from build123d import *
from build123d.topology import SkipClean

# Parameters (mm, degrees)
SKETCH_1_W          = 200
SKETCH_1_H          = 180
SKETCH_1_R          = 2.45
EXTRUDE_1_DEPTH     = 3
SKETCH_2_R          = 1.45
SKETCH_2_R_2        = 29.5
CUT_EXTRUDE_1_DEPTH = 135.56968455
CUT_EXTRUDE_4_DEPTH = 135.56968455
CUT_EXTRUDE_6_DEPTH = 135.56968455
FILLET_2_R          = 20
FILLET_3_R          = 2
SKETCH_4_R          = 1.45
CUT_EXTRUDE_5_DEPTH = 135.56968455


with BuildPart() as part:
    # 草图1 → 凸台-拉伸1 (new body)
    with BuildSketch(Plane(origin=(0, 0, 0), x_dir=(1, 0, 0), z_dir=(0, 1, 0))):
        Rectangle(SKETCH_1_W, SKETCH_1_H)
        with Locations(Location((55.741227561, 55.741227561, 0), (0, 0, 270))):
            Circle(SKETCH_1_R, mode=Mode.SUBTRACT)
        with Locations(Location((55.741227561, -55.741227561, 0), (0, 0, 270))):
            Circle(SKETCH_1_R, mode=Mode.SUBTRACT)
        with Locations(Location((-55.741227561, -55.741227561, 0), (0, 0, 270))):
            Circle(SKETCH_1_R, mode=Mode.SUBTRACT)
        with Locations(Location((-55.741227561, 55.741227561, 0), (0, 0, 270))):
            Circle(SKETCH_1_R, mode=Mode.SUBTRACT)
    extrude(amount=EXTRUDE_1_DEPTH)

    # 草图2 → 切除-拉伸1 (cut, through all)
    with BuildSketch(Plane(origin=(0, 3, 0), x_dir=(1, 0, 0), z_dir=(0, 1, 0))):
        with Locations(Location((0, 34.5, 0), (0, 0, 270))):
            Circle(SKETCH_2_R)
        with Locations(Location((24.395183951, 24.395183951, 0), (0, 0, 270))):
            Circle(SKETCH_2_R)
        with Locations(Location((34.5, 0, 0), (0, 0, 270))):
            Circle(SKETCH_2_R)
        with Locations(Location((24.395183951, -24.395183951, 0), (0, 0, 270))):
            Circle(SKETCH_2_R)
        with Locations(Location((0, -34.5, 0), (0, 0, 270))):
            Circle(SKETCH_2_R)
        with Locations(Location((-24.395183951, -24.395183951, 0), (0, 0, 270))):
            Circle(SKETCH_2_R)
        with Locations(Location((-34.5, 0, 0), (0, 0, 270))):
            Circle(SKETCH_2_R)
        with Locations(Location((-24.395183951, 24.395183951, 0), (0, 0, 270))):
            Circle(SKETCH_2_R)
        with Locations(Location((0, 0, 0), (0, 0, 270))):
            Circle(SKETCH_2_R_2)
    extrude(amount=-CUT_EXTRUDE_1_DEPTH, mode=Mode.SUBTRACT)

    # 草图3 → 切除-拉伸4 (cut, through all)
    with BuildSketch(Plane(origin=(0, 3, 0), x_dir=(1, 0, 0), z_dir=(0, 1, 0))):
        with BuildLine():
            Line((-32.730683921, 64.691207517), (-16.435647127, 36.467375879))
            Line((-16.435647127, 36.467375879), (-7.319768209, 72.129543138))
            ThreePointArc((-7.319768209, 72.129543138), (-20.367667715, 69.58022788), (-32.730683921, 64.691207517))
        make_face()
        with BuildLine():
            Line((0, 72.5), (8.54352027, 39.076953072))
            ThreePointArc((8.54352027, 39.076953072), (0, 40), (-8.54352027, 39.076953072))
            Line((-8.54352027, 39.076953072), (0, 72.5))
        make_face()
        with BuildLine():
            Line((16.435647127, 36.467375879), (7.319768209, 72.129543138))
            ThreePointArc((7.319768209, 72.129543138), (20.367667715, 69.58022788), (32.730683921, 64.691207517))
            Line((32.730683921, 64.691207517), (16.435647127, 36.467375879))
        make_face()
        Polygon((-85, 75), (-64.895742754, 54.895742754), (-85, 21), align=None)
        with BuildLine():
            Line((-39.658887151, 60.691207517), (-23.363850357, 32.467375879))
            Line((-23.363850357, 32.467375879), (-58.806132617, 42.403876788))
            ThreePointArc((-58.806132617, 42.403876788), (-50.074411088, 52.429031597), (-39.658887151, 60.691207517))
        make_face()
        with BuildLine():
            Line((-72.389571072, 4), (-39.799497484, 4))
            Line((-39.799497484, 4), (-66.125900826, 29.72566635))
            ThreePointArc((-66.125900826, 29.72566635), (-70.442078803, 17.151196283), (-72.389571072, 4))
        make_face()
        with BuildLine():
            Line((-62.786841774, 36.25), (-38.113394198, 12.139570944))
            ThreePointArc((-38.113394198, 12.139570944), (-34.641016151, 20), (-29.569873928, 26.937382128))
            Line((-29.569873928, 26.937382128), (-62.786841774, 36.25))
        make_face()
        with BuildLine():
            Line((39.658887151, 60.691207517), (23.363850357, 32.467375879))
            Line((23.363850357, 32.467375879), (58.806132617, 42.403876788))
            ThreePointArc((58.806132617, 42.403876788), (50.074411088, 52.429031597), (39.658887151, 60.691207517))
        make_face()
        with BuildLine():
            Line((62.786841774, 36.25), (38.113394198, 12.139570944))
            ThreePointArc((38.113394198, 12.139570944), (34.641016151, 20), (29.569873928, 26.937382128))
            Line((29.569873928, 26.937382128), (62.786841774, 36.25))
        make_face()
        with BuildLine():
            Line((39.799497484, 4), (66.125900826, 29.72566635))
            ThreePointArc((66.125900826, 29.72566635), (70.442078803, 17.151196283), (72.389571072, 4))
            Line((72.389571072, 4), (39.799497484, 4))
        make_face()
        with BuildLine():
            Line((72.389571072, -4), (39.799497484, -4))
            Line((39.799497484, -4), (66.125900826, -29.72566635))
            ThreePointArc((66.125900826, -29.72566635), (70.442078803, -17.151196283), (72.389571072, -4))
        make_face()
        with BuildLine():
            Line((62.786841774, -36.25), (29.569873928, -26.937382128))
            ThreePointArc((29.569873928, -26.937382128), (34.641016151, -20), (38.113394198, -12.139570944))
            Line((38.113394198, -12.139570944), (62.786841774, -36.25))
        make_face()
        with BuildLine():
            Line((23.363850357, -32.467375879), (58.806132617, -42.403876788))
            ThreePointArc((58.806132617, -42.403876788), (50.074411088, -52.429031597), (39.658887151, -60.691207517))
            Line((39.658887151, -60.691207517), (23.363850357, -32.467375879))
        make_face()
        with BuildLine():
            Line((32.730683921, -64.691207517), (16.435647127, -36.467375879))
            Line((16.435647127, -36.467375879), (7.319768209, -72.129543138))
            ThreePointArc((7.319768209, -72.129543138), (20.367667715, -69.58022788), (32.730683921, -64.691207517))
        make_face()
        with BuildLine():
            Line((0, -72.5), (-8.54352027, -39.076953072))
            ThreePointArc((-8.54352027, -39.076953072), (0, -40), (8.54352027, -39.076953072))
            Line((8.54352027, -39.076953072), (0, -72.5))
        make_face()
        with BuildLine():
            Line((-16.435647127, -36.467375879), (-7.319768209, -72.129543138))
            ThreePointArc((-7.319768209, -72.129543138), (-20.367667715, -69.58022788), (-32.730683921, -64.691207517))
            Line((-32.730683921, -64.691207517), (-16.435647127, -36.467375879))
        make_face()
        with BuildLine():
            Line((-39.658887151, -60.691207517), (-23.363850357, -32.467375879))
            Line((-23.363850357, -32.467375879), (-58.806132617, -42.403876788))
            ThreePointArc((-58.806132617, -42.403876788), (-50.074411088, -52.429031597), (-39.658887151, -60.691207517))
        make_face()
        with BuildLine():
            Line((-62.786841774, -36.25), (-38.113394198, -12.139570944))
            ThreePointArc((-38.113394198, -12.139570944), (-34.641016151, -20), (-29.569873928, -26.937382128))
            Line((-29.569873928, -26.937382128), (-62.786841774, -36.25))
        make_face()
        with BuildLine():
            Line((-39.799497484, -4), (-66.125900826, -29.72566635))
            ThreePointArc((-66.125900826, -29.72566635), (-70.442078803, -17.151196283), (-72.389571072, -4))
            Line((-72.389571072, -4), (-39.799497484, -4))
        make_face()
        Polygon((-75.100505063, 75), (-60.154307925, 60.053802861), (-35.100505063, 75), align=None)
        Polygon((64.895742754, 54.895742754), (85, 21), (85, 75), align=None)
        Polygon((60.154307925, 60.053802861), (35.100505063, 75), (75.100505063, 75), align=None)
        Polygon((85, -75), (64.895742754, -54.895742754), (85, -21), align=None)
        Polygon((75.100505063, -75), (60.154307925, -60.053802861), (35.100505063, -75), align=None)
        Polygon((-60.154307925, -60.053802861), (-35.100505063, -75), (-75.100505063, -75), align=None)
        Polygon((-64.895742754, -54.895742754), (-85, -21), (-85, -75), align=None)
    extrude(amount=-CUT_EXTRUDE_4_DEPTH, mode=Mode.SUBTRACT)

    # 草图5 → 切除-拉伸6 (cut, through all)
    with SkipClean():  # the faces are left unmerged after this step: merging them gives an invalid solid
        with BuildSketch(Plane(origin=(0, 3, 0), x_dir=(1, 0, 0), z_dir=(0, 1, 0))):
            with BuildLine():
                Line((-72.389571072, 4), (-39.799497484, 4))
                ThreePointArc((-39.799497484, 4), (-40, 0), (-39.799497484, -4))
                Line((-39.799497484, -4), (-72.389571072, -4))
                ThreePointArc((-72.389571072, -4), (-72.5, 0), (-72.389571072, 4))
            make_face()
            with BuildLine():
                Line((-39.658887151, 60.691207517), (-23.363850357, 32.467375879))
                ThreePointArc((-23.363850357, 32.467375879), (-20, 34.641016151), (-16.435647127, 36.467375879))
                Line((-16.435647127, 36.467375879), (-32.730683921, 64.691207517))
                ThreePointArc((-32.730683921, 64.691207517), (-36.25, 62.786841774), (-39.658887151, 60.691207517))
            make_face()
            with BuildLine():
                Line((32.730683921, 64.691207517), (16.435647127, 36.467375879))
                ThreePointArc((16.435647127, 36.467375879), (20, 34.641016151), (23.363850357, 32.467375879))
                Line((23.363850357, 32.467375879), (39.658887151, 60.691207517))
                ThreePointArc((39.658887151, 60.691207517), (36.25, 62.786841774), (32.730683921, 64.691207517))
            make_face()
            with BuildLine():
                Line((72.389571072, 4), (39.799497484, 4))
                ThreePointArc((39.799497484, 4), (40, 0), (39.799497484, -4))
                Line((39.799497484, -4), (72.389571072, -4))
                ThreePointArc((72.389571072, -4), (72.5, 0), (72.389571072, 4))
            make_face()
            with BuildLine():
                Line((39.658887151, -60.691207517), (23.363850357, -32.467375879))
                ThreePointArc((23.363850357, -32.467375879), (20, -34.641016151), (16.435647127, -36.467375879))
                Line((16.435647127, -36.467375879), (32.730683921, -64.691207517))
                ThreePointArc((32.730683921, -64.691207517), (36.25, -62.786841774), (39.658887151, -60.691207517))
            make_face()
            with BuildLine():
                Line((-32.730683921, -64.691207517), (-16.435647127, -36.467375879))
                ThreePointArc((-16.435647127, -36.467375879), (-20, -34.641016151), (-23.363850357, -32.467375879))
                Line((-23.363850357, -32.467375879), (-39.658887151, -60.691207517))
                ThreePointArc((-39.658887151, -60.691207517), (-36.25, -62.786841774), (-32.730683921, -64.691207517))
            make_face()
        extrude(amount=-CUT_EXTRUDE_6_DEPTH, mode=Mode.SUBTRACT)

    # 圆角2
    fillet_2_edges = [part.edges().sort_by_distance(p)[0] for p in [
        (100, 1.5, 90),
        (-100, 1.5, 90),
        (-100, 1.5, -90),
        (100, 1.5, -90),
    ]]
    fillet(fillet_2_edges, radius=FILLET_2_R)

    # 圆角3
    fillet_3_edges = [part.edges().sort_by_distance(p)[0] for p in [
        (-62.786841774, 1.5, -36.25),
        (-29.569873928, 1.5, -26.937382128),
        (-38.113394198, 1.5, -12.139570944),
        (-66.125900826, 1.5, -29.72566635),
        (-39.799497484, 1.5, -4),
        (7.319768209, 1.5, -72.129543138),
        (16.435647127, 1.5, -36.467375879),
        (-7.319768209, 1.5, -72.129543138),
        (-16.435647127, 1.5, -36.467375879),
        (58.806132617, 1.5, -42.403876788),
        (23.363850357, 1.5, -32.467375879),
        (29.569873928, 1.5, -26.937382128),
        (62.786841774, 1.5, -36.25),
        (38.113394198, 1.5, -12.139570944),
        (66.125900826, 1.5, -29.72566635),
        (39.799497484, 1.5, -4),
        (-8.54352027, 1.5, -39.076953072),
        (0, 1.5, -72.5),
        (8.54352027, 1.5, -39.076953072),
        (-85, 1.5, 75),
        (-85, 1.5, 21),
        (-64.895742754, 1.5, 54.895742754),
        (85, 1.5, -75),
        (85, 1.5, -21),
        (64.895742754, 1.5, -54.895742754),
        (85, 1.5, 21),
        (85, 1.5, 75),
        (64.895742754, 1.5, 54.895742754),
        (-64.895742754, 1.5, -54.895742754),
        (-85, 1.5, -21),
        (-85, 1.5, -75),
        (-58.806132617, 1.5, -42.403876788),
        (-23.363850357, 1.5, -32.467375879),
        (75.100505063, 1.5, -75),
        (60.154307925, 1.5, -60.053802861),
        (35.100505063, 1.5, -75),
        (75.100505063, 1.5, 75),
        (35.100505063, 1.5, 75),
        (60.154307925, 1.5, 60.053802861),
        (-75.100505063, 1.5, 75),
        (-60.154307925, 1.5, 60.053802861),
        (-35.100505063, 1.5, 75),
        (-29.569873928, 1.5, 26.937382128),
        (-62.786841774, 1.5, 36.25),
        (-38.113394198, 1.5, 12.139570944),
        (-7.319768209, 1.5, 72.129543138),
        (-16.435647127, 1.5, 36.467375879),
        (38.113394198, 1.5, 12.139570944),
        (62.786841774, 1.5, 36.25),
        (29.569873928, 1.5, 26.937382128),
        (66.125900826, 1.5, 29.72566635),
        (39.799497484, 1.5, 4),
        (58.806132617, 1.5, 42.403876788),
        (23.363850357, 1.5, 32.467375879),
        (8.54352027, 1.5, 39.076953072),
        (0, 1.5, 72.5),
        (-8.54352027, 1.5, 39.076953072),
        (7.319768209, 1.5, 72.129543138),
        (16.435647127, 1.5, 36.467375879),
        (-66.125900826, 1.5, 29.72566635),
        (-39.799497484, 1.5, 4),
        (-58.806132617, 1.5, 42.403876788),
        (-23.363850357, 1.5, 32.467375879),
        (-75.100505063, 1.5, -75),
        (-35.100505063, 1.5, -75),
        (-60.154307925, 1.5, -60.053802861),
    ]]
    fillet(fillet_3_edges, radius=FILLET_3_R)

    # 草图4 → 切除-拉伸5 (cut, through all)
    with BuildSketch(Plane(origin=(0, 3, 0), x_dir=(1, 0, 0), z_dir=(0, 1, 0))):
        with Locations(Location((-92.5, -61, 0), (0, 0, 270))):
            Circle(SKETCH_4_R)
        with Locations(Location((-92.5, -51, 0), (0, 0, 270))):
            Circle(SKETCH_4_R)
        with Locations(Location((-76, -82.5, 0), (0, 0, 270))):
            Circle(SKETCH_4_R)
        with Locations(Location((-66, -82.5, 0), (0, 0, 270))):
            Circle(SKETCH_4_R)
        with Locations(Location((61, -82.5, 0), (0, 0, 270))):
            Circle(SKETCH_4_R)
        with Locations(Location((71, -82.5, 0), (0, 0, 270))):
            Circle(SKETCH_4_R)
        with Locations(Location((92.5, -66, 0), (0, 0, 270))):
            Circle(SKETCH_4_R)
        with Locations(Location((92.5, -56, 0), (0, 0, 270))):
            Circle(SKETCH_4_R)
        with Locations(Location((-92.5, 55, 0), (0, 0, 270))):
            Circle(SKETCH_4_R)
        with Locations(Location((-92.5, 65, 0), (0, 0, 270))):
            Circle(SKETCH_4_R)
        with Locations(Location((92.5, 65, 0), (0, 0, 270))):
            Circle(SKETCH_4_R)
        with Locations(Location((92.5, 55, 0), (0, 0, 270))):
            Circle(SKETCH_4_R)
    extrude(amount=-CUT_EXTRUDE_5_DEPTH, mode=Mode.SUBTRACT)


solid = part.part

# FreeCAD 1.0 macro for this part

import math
import FreeCAD as App
import Part
import Sketcher
from FreeCAD import Vector
Q = App.Units.Quantity


def edges_at(feature, points):
    """Names of the edges that pass closest to the given points."""
    edges = feature.Shape.Edges
    near = lambda p: min(range(len(edges)), key=lambda i: edges[i].distToShape(Part.Vertex(*p))[0])
    return sorted({f"Edge{near(p) + 1}" for p in points})

doc = App.newDocument("Part")
body = doc.addObject("PartDesign::Body", "Body")

sketch1 = doc.addObject("Sketcher::SketchObject", "Sketch")
body.addObject(sketch1)
sketch1.AttachmentSupport = (doc.XZ_Plane, [""])
sketch1.MapMode = "FlatFace"
sketch1.addGeometry([
    Part.LineSegment(Vector(-100, -90, 0), Vector(-100, 90, 0)),
    Part.LineSegment(Vector(-100, 90, 0), Vector(100, 90, 0)),
    Part.LineSegment(Vector(100, 90, 0), Vector(100, -90, 0)),
    Part.LineSegment(Vector(100, -90, 0), Vector(-100, -90, 0)),
    Part.Circle(Vector(-55.741228, 55.741228, 0), Vector(0, 0, 1), 2.45),
    Part.Circle(Vector(55.741228, 55.741228, 0), Vector(0, 0, 1), 2.45),
    Part.Circle(Vector(-55.741228, -55.741228, 0), Vector(0, 0, 1), 2.45),
    Part.Circle(Vector(55.741228, -55.741228, 0), Vector(0, 0, 1), 2.45),
], False)
sketch1.addConstraint([
    Sketcher.Constraint("Coincident", 0, 2, 1, 1),
    Sketcher.Constraint("Coincident", 1, 2, 2, 1),
    Sketcher.Constraint("Coincident", 2, 2, 3, 1),
    Sketcher.Constraint("Coincident", 3, 2, 0, 1),
    Sketcher.Constraint("Vertical", 0),
    Sketcher.Constraint("Horizontal", 1),
    Sketcher.Constraint("Vertical", 2),
    Sketcher.Constraint("Horizontal", 3),
    Sketcher.Constraint("Equal", 4, 5),
    Sketcher.Constraint("Equal", 5, 6),
    Sketcher.Constraint("Equal", 6, 7),
    Sketcher.Constraint("Symmetric", 5, 3, 6, 3, -1, 1),
    Sketcher.Constraint("Symmetric", 4, 3, 7, 3, -1, 1),
    Sketcher.Constraint("Symmetric", 0, 2, 2, 2, -1, 1),
    Sketcher.Constraint("Symmetric", 4, 3, 5, 3, -2),
    Sketcher.Constraint("Diameter", 4, 4.9),
    Sketcher.Constraint("DistanceX", 1, 1, 1, 2, 200.0),
    Sketcher.Constraint("DistanceY", 0, 1, 0, 2, 180.0),
    Sketcher.Constraint("DistanceX", 4, 3, -1, 1, 55.741228),
    Sketcher.Constraint("DistanceY", -1, 1, 4, 3, 55.741228),
])
pad1 = doc.addObject("PartDesign::Pad", "Pad")
body.addObject(pad1)
pad1.Profile = sketch1
pad1.Length = 3
pad1.Reversed = True

sketch2 = doc.addObject("Sketcher::SketchObject", "Sketch001")
body.addObject(sketch2)
sketch2.AttachmentSupport = (doc.XZ_Plane, [""])
sketch2.MapMode = "FlatFace"
sketch2.AttachmentOffset = App.Placement(Vector(0, 0, -3), App.Rotation())
sketch2.addGeometry([
    Part.Circle(Vector(0, -34.5, 0), Vector(0, 0, 1), 1.45),
    Part.Circle(Vector(24.395184, -24.395184, 0), Vector(0, 0, 1), 1.45),
    Part.Circle(Vector(34.5, 0, 0), Vector(0, 0, 1), 1.45),
    Part.Circle(Vector(24.395184, 24.395184, 0), Vector(0, 0, 1), 1.45),
    Part.Circle(Vector(0, 34.5, 0), Vector(0, 0, 1), 1.45),
    Part.Circle(Vector(-24.395184, 24.395184, 0), Vector(0, 0, 1), 1.45),
    Part.Circle(Vector(-34.5, 0, 0), Vector(0, 0, 1), 1.45),
    Part.Circle(Vector(-24.395184, -24.395184, 0), Vector(0, 0, 1), 1.45),
    Part.Circle(Vector(0, 0, 0), Vector(0, 0, 1), 29.5),
], False)
sketch2.addConstraint([
    Sketcher.Constraint("Coincident", 8, 3, -1, 1),
    Sketcher.Constraint("Equal", 0, 1),
    Sketcher.Constraint("Equal", 1, 2),
    Sketcher.Constraint("Equal", 2, 3),
    Sketcher.Constraint("Equal", 3, 4),
    Sketcher.Constraint("Equal", 4, 5),
    Sketcher.Constraint("Equal", 5, 6),
    Sketcher.Constraint("Equal", 6, 7),
    Sketcher.Constraint("Symmetric", 0, 3, 4, 3, -1, 1),
    Sketcher.Constraint("Symmetric", 1, 3, 5, 3, -1, 1),
    Sketcher.Constraint("Symmetric", 2, 3, 6, 3, -1, 1),
    Sketcher.Constraint("Symmetric", 3, 3, 7, 3, -1, 1),
    Sketcher.Constraint("Symmetric", 3, 3, 5, 3, -2),
    Sketcher.Constraint("PointOnObject", 0, 3, -2),
    Sketcher.Constraint("PointOnObject", 2, 3, -1),
    Sketcher.Constraint("Diameter", 8, 59.0),
    Sketcher.Constraint("Diameter", 0, 2.9),
    Sketcher.Constraint("DistanceY", 0, 3, 4, 3, 69.0),
    Sketcher.Constraint("DistanceX", -1, 1, 2, 3, 34.5),
    Sketcher.Constraint("DistanceX", -1, 1, 1, 3, 24.395184),
    Sketcher.Constraint("DistanceY", 1, 3, -1, 1, 24.395184),
])
pocket1 = doc.addObject("PartDesign::Pocket", "Pocket")
body.addObject(pocket1)
pocket1.Profile = sketch2
pocket1.Type = "ThroughAll"
pocket1.Reversed = True

sketch3 = doc.addObject("Sketcher::SketchObject", "Sketch002")
body.addObject(sketch3)
sketch3.AttachmentSupport = (doc.XZ_Plane, [""])
sketch3.MapMode = "FlatFace"
sketch3.AttachmentOffset = App.Placement(Vector(0, 0, -3), App.Rotation())
sketch3.addGeometry([
    Part.LineSegment(Vector(-32.730684, -64.691208, 0), Vector(-16.435647, -36.467376, 0)),
    Part.LineSegment(Vector(-16.435647, -36.467376, 0), Vector(-7.319768, -72.129543, 0)),
    Part.ArcOfCircle(Part.Circle(Vector(0, 0, 0), Vector(0, 0, 1), 72.5), math.radians(-116.837248), math.radians(-95.794588)),
    Part.LineSegment(Vector(8.54352, -39.076953, 0), Vector(0, -72.5, 0)),
    Part.LineSegment(Vector(0, -72.5, 0), Vector(-8.54352, -39.076953, 0)),
    Part.ArcOfCircle(Part.Circle(Vector(0, 0, 0), Vector(0, 0, 1), 40), math.radians(-102.332702), math.radians(-77.667298)),
    Part.LineSegment(Vector(7.319768, -72.129543, 0), Vector(16.435647, -36.467376, 0)),
    Part.LineSegment(Vector(16.435647, -36.467376, 0), Vector(32.730684, -64.691208, 0)),
    Part.ArcOfCircle(Part.Circle(Vector(0, 0, 0), Vector(0, 0, 1), 72.5), math.radians(-84.205412), math.radians(-63.162752)),
    Part.LineSegment(Vector(-64.895743, -54.895743, 0), Vector(-85, -75, 0)),
    Part.LineSegment(Vector(-85, -75, 0), Vector(-85, -21, 0)),
    Part.LineSegment(Vector(-85, -21, 0), Vector(-64.895743, -54.895743, 0)),
    Part.LineSegment(Vector(-23.36385, -32.467376, 0), Vector(-39.658887, -60.691208, 0)),
    Part.ArcOfCircle(Part.Circle(Vector(0, 0, 0), Vector(0, 0, 1), 72.5), math.radians(-144.205412), math.radians(-123.162752)),
    Part.LineSegment(Vector(-58.806133, -42.403877, 0), Vector(-23.36385, -32.467376, 0)),
    Part.LineSegment(Vector(-72.389571, -4, 0), Vector(-39.799497, -4, 0)),
    Part.LineSegment(Vector(-39.799497, -4, 0), Vector(-66.125901, -29.725666, 0)),
    Part.ArcOfCircle(Part.Circle(Vector(0, 0, 0), Vector(0, 0, 1), 72.5), math.radians(-176.837248), math.radians(-155.794588)),
    Part.LineSegment(Vector(-62.786842, -36.25, 0), Vector(-38.113394, -12.139571, 0)),
    Part.ArcOfCircle(Part.Circle(Vector(0, 0, 0), Vector(0, 0, 1), 40), math.radians(-162.332702), math.radians(-137.667298)),
    Part.LineSegment(Vector(-29.569874, -26.937382, 0), Vector(-62.786842, -36.25, 0)),
    Part.LineSegment(Vector(39.658887, -60.691208, 0), Vector(23.36385, -32.467376, 0)),
    Part.LineSegment(Vector(23.36385, -32.467376, 0), Vector(58.806133, -42.403877, 0)),
    Part.ArcOfCircle(Part.Circle(Vector(0, 0, 0), Vector(0, 0, 1), 72.5), math.radians(-56.837248), math.radians(-35.794588)),
    Part.LineSegment(Vector(38.113394, -12.139571, 0), Vector(62.786842, -36.25, 0)),
    Part.LineSegment(Vector(62.786842, -36.25, 0), Vector(29.569874, -26.937382, 0)),
    Part.ArcOfCircle(Part.Circle(Vector(0, 0, 0), Vector(0, 0, 1), 40), math.radians(-42.332702), math.radians(-17.667298)),
    Part.LineSegment(Vector(66.125901, -29.725666, 0), Vector(39.799497, -4, 0)),
    Part.LineSegment(Vector(39.799497, -4, 0), Vector(72.389571, -4, 0)),
    Part.ArcOfCircle(Part.Circle(Vector(0, 0, 0), Vector(0, 0, 1), 72.5), math.radians(-24.205412), math.radians(-3.162752)),
    Part.LineSegment(Vector(72.389571, 4, 0), Vector(39.799497, 4, 0)),
    Part.LineSegment(Vector(39.799497, 4, 0), Vector(66.125901, 29.725666, 0)),
    Part.ArcOfCircle(Part.Circle(Vector(0, 0, 0), Vector(0, 0, 1), 72.5), math.radians(3.162752), math.radians(24.205412)),
    Part.LineSegment(Vector(29.569874, 26.937382, 0), Vector(62.786842, 36.25, 0)),
    Part.LineSegment(Vector(62.786842, 36.25, 0), Vector(38.113394, 12.139571, 0)),
    Part.ArcOfCircle(Part.Circle(Vector(0, 0, 0), Vector(0, 0, 1), 40), math.radians(17.667298), math.radians(42.332702)),
    Part.LineSegment(Vector(58.806133, 42.403877, 0), Vector(23.36385, 32.467376, 0)),
    Part.LineSegment(Vector(23.36385, 32.467376, 0), Vector(39.658887, 60.691208, 0)),
    Part.ArcOfCircle(Part.Circle(Vector(0, 0, 0), Vector(0, 0, 1), 72.5), math.radians(35.794588), math.radians(56.837248)),
    Part.LineSegment(Vector(32.730684, 64.691208, 0), Vector(16.435647, 36.467376, 0)),
    Part.LineSegment(Vector(16.435647, 36.467376, 0), Vector(7.319768, 72.129543, 0)),
    Part.ArcOfCircle(Part.Circle(Vector(0, 0, 0), Vector(0, 0, 1), 72.5), math.radians(63.162752), math.radians(84.205412)),
    Part.LineSegment(Vector(-8.54352, 39.076953, 0), Vector(0, 72.5, 0)),
    Part.LineSegment(Vector(0, 72.5, 0), Vector(8.54352, 39.076953, 0)),
    Part.ArcOfCircle(Part.Circle(Vector(0, 0, 0), Vector(0, 0, 1), 40), math.radians(77.667298), math.radians(102.332702)),
    Part.LineSegment(Vector(-7.319768, 72.129543, 0), Vector(-16.435647, 36.467376, 0)),
    Part.LineSegment(Vector(-16.435647, 36.467376, 0), Vector(-32.730684, 64.691208, 0)),
    Part.ArcOfCircle(Part.Circle(Vector(0, 0, 0), Vector(0, 0, 1), 72.5), math.radians(95.794588), math.radians(116.837248)),
    Part.LineSegment(Vector(-39.658887, 60.691208, 0), Vector(-23.36385, 32.467376, 0)),
    Part.LineSegment(Vector(-23.36385, 32.467376, 0), Vector(-58.806133, 42.403877, 0)),
    Part.ArcOfCircle(Part.Circle(Vector(0, 0, 0), Vector(0, 0, 1), 72.5), math.radians(123.162752), math.radians(144.205412)),
    Part.LineSegment(Vector(-38.113394, 12.139571, 0), Vector(-62.786842, 36.25, 0)),
    Part.LineSegment(Vector(-62.786842, 36.25, 0), Vector(-29.569874, 26.937382, 0)),
    Part.ArcOfCircle(Part.Circle(Vector(0, 0, 0), Vector(0, 0, 1), 40), math.radians(137.667298), math.radians(162.332702)),
    Part.LineSegment(Vector(-66.125901, 29.725666, 0), Vector(-39.799497, 4, 0)),
    Part.LineSegment(Vector(-39.799497, 4, 0), Vector(-72.389571, 4, 0)),
    Part.ArcOfCircle(Part.Circle(Vector(0, 0, 0), Vector(0, 0, 1), 72.5), math.radians(155.794588), math.radians(176.837248)),
    Part.LineSegment(Vector(-75.100505, -75, 0), Vector(-60.154308, -60.053803, 0)),
    Part.LineSegment(Vector(-60.154308, -60.053803, 0), Vector(-35.100505, -75, 0)),
    Part.LineSegment(Vector(-35.100505, -75, 0), Vector(-75.100505, -75, 0)),
    Part.LineSegment(Vector(64.895743, -54.895743, 0), Vector(85, -21, 0)),
    Part.LineSegment(Vector(85, -21, 0), Vector(85, -75, 0)),
    Part.LineSegment(Vector(85, -75, 0), Vector(64.895743, -54.895743, 0)),
    Part.LineSegment(Vector(35.100505, -75, 0), Vector(60.154308, -60.053803, 0)),
    Part.LineSegment(Vector(60.154308, -60.053803, 0), Vector(75.100505, -75, 0)),
    Part.LineSegment(Vector(75.100505, -75, 0), Vector(35.100505, -75, 0)),
    Part.LineSegment(Vector(64.895743, 54.895743, 0), Vector(85, 75, 0)),
    Part.LineSegment(Vector(85, 75, 0), Vector(85, 21, 0)),
    Part.LineSegment(Vector(85, 21, 0), Vector(64.895743, 54.895743, 0)),
    Part.LineSegment(Vector(75.100505, 75, 0), Vector(60.154308, 60.053803, 0)),
    Part.LineSegment(Vector(60.154308, 60.053803, 0), Vector(35.100505, 75, 0)),
    Part.LineSegment(Vector(35.100505, 75, 0), Vector(75.100505, 75, 0)),
    Part.LineSegment(Vector(-35.100505, 75, 0), Vector(-60.154308, 60.053803, 0)),
    Part.LineSegment(Vector(-60.154308, 60.053803, 0), Vector(-75.100505, 75, 0)),
    Part.LineSegment(Vector(-75.100505, 75, 0), Vector(-35.100505, 75, 0)),
    Part.LineSegment(Vector(-64.895743, 54.895743, 0), Vector(-85, 21, 0)),
    Part.LineSegment(Vector(-85, 21, 0), Vector(-85, 75, 0)),
    Part.LineSegment(Vector(-85, 75, 0), Vector(-64.895743, 54.895743, 0)),
], False)
sketch3.addConstraint([
    Sketcher.Constraint("Coincident", 0, 2, 1, 1),
    Sketcher.Constraint("Coincident", 1, 2, 2, 2),
    Sketcher.Constraint("Coincident", 2, 1, 0, 1),
    Sketcher.Constraint("Coincident", 3, 2, 4, 1),
    Sketcher.Constraint("Coincident", 4, 2, 5, 1),
    Sketcher.Constraint("Coincident", 5, 2, 3, 1),
    Sketcher.Constraint("Coincident", 6, 2, 7, 1),
    Sketcher.Constraint("Coincident", 7, 2, 8, 2),
    Sketcher.Constraint("Coincident", 8, 1, 6, 1),
    Sketcher.Constraint("Coincident", 9, 2, 10, 1),
    Sketcher.Constraint("Coincident", 10, 2, 11, 1),
    Sketcher.Constraint("Coincident", 11, 2, 9, 1),
    Sketcher.Constraint("Coincident", 12, 2, 13, 2),
    Sketcher.Constraint("Coincident", 13, 1, 14, 1),
    Sketcher.Constraint("Coincident", 14, 2, 12, 1),
    Sketcher.Constraint("Coincident", 15, 2, 16, 1),
    Sketcher.Constraint("Coincident", 16, 2, 17, 2),
    Sketcher.Constraint("Coincident", 17, 1, 15, 1),
    Sketcher.Constraint("Coincident", 18, 2, 19, 1),
    Sketcher.Constraint("Coincident", 19, 2, 20, 1),
    Sketcher.Constraint("Coincident", 20, 2, 18, 1),
    Sketcher.Constraint("Coincident", 21, 2, 22, 1),
    Sketcher.Constraint("Coincident", 22, 2, 23, 2),
    Sketcher.Constraint("Coincident", 23, 1, 21, 1),
    Sketcher.Constraint("Coincident", 24, 2, 25, 1),
    Sketcher.Constraint("Coincident", 25, 2, 26, 1),
    Sketcher.Constraint("Coincident", 26, 2, 24, 1),
    Sketcher.Constraint("Coincident", 27, 2, 28, 1),
    Sketcher.Constraint("Coincident", 28, 2, 29, 2),
    Sketcher.Constraint("Coincident", 29, 1, 27, 1),
    Sketcher.Constraint("Coincident", 30, 2, 31, 1),
    Sketcher.Constraint("Coincident", 31, 2, 32, 2),
    Sketcher.Constraint("Coincident", 32, 1, 30, 1),
    Sketcher.Constraint("Coincident", 33, 2, 34, 1),
    Sketcher.Constraint("Coincident", 34, 2, 35, 1),
    Sketcher.Constraint("Coincident", 35, 2, 33, 1),
    Sketcher.Constraint("Coincident", 36, 2, 37, 1),
    Sketcher.Constraint("Coincident", 37, 2, 38, 2),
    Sketcher.Constraint("Coincident", 38, 1, 36, 1),
    Sketcher.Constraint("Coincident", 39, 2, 40, 1),
    Sketcher.Constraint("Coincident", 40, 2, 41, 2),
    Sketcher.Constraint("Coincident", 41, 1, 39, 1),
    Sketcher.Constraint("Coincident", 42, 2, 43, 1),
    Sketcher.Constraint("Coincident", 43, 2, 44, 1),
    Sketcher.Constraint("Coincident", 44, 2, 42, 1),
    Sketcher.Constraint("Coincident", 45, 2, 46, 1),
    Sketcher.Constraint("Coincident", 46, 2, 47, 2),
    Sketcher.Constraint("Coincident", 47, 1, 45, 1),
    Sketcher.Constraint("Coincident", 48, 2, 49, 1),
    Sketcher.Constraint("Coincident", 49, 2, 50, 2),
    Sketcher.Constraint("Coincident", 50, 1, 48, 1),
    Sketcher.Constraint("Coincident", 51, 2, 52, 1),
    Sketcher.Constraint("Coincident", 52, 2, 53, 1),
    Sketcher.Constraint("Coincident", 53, 2, 51, 1),
    Sketcher.Constraint("Coincident", 54, 2, 55, 1),
    Sketcher.Constraint("Coincident", 55, 2, 56, 2),
    Sketcher.Constraint("Coincident", 56, 1, 54, 1),
    Sketcher.Constraint("Coincident", 57, 2, 58, 1),
    Sketcher.Constraint("Coincident", 58, 2, 59, 1),
    Sketcher.Constraint("Coincident", 59, 2, 57, 1),
    Sketcher.Constraint("Coincident", 60, 2, 61, 1),
    Sketcher.Constraint("Coincident", 61, 2, 62, 1),
    Sketcher.Constraint("Coincident", 62, 2, 60, 1),
    Sketcher.Constraint("Coincident", 63, 2, 64, 1),
    Sketcher.Constraint("Coincident", 64, 2, 65, 1),
    Sketcher.Constraint("Coincident", 65, 2, 63, 1),
    Sketcher.Constraint("Coincident", 66, 2, 67, 1),
    Sketcher.Constraint("Coincident", 67, 2, 68, 1),
    Sketcher.Constraint("Coincident", 68, 2, 66, 1),
    Sketcher.Constraint("Coincident", 69, 2, 70, 1),
    Sketcher.Constraint("Coincident", 70, 2, 71, 1),
    Sketcher.Constraint("Coincident", 71, 2, 69, 1),
    Sketcher.Constraint("Coincident", 72, 2, 73, 1),
    Sketcher.Constraint("Coincident", 73, 2, 74, 1),
    Sketcher.Constraint("Coincident", 74, 2, 72, 1),
    Sketcher.Constraint("Coincident", 75, 2, 76, 1),
    Sketcher.Constraint("Coincident", 76, 2, 77, 1),
    Sketcher.Constraint("Coincident", 77, 2, 75, 1),
    Sketcher.Constraint("Vertical", 10),
    Sketcher.Constraint("Horizontal", 15),
    Sketcher.Constraint("Horizontal", 28),
    Sketcher.Constraint("Horizontal", 30),
    Sketcher.Constraint("Horizontal", 55),
    Sketcher.Constraint("Horizontal", 59),
    Sketcher.Constraint("Vertical", 61),
    Sketcher.Constraint("Horizontal", 65),
    Sketcher.Constraint("Vertical", 67),
    Sketcher.Constraint("Horizontal", 71),
    Sketcher.Constraint("Horizontal", 74),
    Sketcher.Constraint("Vertical", 76),
    Sketcher.Constraint("Coincident", 2, 3, -1, 1),
    Sketcher.Constraint("Coincident", 5, 3, -1, 1),
    Sketcher.Constraint("Coincident", 8, 3, -1, 1),
    Sketcher.Constraint("Coincident", 13, 3, -1, 1),
    Sketcher.Constraint("Coincident", 17, 3, -1, 1),
    Sketcher.Constraint("Coincident", 19, 3, -1, 1),
    Sketcher.Constraint("Coincident", 23, 3, -1, 1),
    Sketcher.Constraint("Coincident", 26, 3, -1, 1),
    Sketcher.Constraint("Coincident", 29, 3, -1, 1),
    Sketcher.Constraint("Coincident", 32, 3, -1, 1),
    Sketcher.Constraint("Coincident", 35, 3, -1, 1),
    Sketcher.Constraint("Coincident", 38, 3, -1, 1),
    Sketcher.Constraint("Coincident", 41, 3, -1, 1),
    Sketcher.Constraint("Coincident", 44, 3, -1, 1),
    Sketcher.Constraint("Coincident", 47, 3, -1, 1),
    Sketcher.Constraint("Coincident", 50, 3, -1, 1),
    Sketcher.Constraint("Coincident", 53, 3, -1, 1),
    Sketcher.Constraint("Coincident", 56, 3, -1, 1),
    Sketcher.Constraint("Equal", 2, 8),
    Sketcher.Constraint("Equal", 8, 13),
    Sketcher.Constraint("Equal", 13, 17),
    Sketcher.Constraint("Equal", 5, 19),
    Sketcher.Constraint("Equal", 17, 23),
    Sketcher.Constraint("Equal", 19, 26),
    Sketcher.Constraint("Equal", 23, 29),
    Sketcher.Constraint("Equal", 29, 32),
    Sketcher.Constraint("Equal", 26, 35),
    Sketcher.Constraint("Equal", 32, 38),
    Sketcher.Constraint("Equal", 38, 41),
    Sketcher.Constraint("Equal", 35, 44),
    Sketcher.Constraint("Equal", 41, 47),
    Sketcher.Constraint("Equal", 47, 50),
    Sketcher.Constraint("Equal", 44, 53),
    Sketcher.Constraint("Equal", 50, 56),
    Sketcher.Constraint("Symmetric", 15, 2, 30, 2, -1, 1),
    Sketcher.Constraint("Symmetric", 20, 2, 33, 2, -1, 1),
    Sketcher.Constraint("Symmetric", 14, 2, 36, 2, -1, 1),
    Sketcher.Constraint("Symmetric", 0, 2, 39, 2, -1, 1),
    Sketcher.Constraint("Symmetric", 3, 2, 42, 2, -1, 1),
    Sketcher.Constraint("Symmetric", 6, 2, 45, 2, -1, 1),
    Sketcher.Constraint("Symmetric", 21, 2, 48, 2, -1, 1),
    Sketcher.Constraint("Symmetric", 24, 2, 51, 2, -1, 1),
    Sketcher.Constraint("Symmetric", 27, 2, 54, 2, -1, 1),
    Sketcher.Constraint("Symmetric", 9, 2, 66, 2, -1, 1),
    Sketcher.Constraint("Symmetric", 11, 2, 68, 2, -1, 1),
    Sketcher.Constraint("Symmetric", 57, 2, 69, 2, -1, 1),
    Sketcher.Constraint("Symmetric", 58, 2, 70, 2, -1, 1),
    Sketcher.Constraint("Symmetric", 63, 2, 72, 2, -1, 1),
    Sketcher.Constraint("Symmetric", 64, 2, 73, 2, -1, 1),
    Sketcher.Constraint("Symmetric", 60, 2, 75, 2, -1, 1),
    Sketcher.Constraint("Symmetric", 62, 2, 77, 2, -1, 1),
    Sketcher.Constraint("Symmetric", 0, 2, 6, 2, -2),
    Sketcher.Constraint("Symmetric", 14, 2, 21, 2, -2),
    Sketcher.Constraint("Symmetric", 20, 2, 24, 2, -2),
    Sketcher.Constraint("Symmetric", 15, 2, 27, 2, -2),
    Sketcher.Constraint("Symmetric", 10, 2, 60, 2, -2),
    Sketcher.Constraint("Symmetric", 11, 2, 62, 2, -2),
    Sketcher.Constraint("Symmetric", 57, 2, 63, 2, -2),
    Sketcher.Constraint("Symmetric", 59, 2, 64, 2, -2),
    Sketcher.Constraint("PointOnObject", 3, 2, -2),
    Sketcher.Constraint("Parallel", 1, 4),
    Sketcher.Constraint("Parallel", 3, 6),
    Sketcher.Constraint("Parallel", 0, 12),
    Sketcher.Constraint("Parallel", 16, 18),
    Sketcher.Constraint("Parallel", 14, 20),
    Sketcher.Constraint("Parallel", 7, 21),
    Sketcher.Constraint("Parallel", 22, 25),
    Sketcher.Constraint("Parallel", 24, 27),
    Sketcher.Constraint("Parallel", 18, 31),
    Sketcher.Constraint("Parallel", 20, 33),
    Sketcher.Constraint("Parallel", 31, 34),
    Sketcher.Constraint("Parallel", 33, 36),
    Sketcher.Constraint("Parallel", 12, 37),
    Sketcher.Constraint("Parallel", 37, 39),
    Sketcher.Constraint("Parallel", 4, 40),
    Sketcher.Constraint("Parallel", 6, 42),
    Sketcher.Constraint("Parallel", 40, 43),
    Sketcher.Constraint("Parallel", 42, 45),
    Sketcher.Constraint("Parallel", 21, 46),
    Sketcher.Constraint("Parallel", 46, 48),
    Sketcher.Constraint("Parallel", 25, 49),
    Sketcher.Constraint("Parallel", 27, 51),
    Sketcher.Constraint("Parallel", 49, 52),
    Sketcher.Constraint("Parallel", 51, 54),
    Sketcher.Constraint("Parallel", 9, 57),
    Sketcher.Constraint("Perpendicular", 57, 62),
    Sketcher.Constraint("Parallel", 62, 64),
    Sketcher.Constraint("Parallel", 11, 68),
    Sketcher.Constraint("Parallel", 66, 69),
    Sketcher.Constraint("Parallel", 63, 72),
    Sketcher.Constraint("Parallel", 73, 77),
    Sketcher.Constraint("Horizontal", 4, 2, 5, 2),
    Sketcher.Constraint("Horizontal", 2, 1, 7, 2),
    Sketcher.Constraint("Horizontal", 13, 1, 22, 2),
    Sketcher.Constraint("Horizontal", 18, 2, 26, 2),
    Sketcher.Constraint("Horizontal", 9, 2, 58, 2),
    Sketcher.Constraint("Vertical", 65, 2, 70, 2),
    Sketcher.Constraint("Equal", 7, 12),
    Sketcher.Constraint("Equal", 6, 14),
    Sketcher.Constraint("Equal", 14, 16),
    Sketcher.Constraint("Equal", 4, 18),
    Sketcher.Constraint("Equal", 18, 20),
    Sketcher.Constraint("Radius", 5, 40.0),
    Sketcher.Constraint("Radius", 2, 72.5),
    Sketcher.Constraint("DistanceX", 59, 2, 59, 1, 40.0),
    Sketcher.Constraint("DistanceY", 10, 1, 10, 2, 54.0),
    Sketcher.Constraint("Angle", 0, Q("60 deg")),
    Sketcher.Constraint("DistanceX", 9, 2, -1, 1, 85.0),
    Sketcher.Constraint("DistanceY", 9, 2, -1, 1, 75.0),
    Sketcher.Constraint("DistanceY", 15, 2, -1, 1, 4.0),
    Sketcher.Constraint("DistanceY", 3, 2, -1, 1, 72.5),
    Sketcher.Constraint("DistanceY", 20, 2, -1, 1, 36.25),
    Sketcher.Constraint("DistanceX", 16, 2, -1, 1, 66.125901),
    Sketcher.Constraint("Distance", 11, 39.409422),
    Sketcher.Constraint("DistanceX", 15, 1, 15, 2, 32.590074),
    Sketcher.Constraint("DistanceX", 1, 2, -1, 1, 7.319768),
    Sketcher.Constraint("DistanceX", 4, 2, -1, 1, 8.54352),
    Sketcher.Constraint("Distance", 57, 21.137115),
    Sketcher.Constraint("DistanceX", 57, 2, -1, 1, 60.154308),
])
pocket2 = doc.addObject("PartDesign::Pocket", "Pocket001")
body.addObject(pocket2)
pocket2.Profile = sketch3
pocket2.Type = "ThroughAll"
pocket2.Reversed = True

sketch4 = doc.addObject("Sketcher::SketchObject", "Sketch003")
body.addObject(sketch4)
sketch4.AttachmentSupport = (doc.XZ_Plane, [""])
sketch4.MapMode = "FlatFace"
sketch4.AttachmentOffset = App.Placement(Vector(0, 0, -3), App.Rotation())
sketch4.addGeometry([
    Part.LineSegment(Vector(-39.799497, -4, 0), Vector(-72.389571, -4, 0)),
    Part.ArcOfCircle(Part.Circle(Vector(0, 0, 0), Vector(0, 0, 1), 72.5), math.radians(176.837248), math.radians(183.162752)),
    Part.LineSegment(Vector(-72.389571, 4, 0), Vector(-39.799497, 4, 0)),
    Part.ArcOfCircle(Part.Circle(Vector(0, 0, 0), Vector(0, 0, 1), 40), math.radians(174.26083), math.radians(185.73917)),
    Part.LineSegment(Vector(-39.658887, -60.691208, 0), Vector(-23.36385, -32.467376, 0)),
    Part.ArcOfCircle(Part.Circle(Vector(0, 0, 0), Vector(0, 0, 1), 40), math.radians(-125.73917), math.radians(-114.26083)),
    Part.LineSegment(Vector(-16.435647, -36.467376, 0), Vector(-32.730684, -64.691208, 0)),
    Part.ArcOfCircle(Part.Circle(Vector(0, 0, 0), Vector(0, 0, 1), 72.5), math.radians(-123.162752), math.radians(-116.837248)),
    Part.LineSegment(Vector(32.730684, -64.691208, 0), Vector(16.435647, -36.467376, 0)),
    Part.ArcOfCircle(Part.Circle(Vector(0, 0, 0), Vector(0, 0, 1), 40), math.radians(-65.73917), math.radians(-54.26083)),
    Part.LineSegment(Vector(23.36385, -32.467376, 0), Vector(39.658887, -60.691208, 0)),
    Part.ArcOfCircle(Part.Circle(Vector(0, 0, 0), Vector(0, 0, 1), 72.5), math.radians(-63.162752), math.radians(-56.837248)),
    Part.LineSegment(Vector(72.389571, -4, 0), Vector(39.799497, -4, 0)),
    Part.ArcOfCircle(Part.Circle(Vector(0, 0, 0), Vector(0, 0, 1), 40), math.radians(-5.73917), math.radians(5.73917)),
    Part.LineSegment(Vector(39.799497, 4, 0), Vector(72.389571, 4, 0)),
    Part.ArcOfCircle(Part.Circle(Vector(0, 0, 0), Vector(0, 0, 1), 72.5), math.radians(-3.162752), math.radians(3.162752)),
    Part.LineSegment(Vector(39.658887, 60.691208, 0), Vector(23.36385, 32.467376, 0)),
    Part.ArcOfCircle(Part.Circle(Vector(0, 0, 0), Vector(0, 0, 1), 40), math.radians(54.26083), math.radians(65.73917)),
    Part.LineSegment(Vector(16.435647, 36.467376, 0), Vector(32.730684, 64.691208, 0)),
    Part.ArcOfCircle(Part.Circle(Vector(0, 0, 0), Vector(0, 0, 1), 72.5), math.radians(56.837248), math.radians(63.162752)),
    Part.LineSegment(Vector(-32.730684, 64.691208, 0), Vector(-16.435647, 36.467376, 0)),
    Part.ArcOfCircle(Part.Circle(Vector(0, 0, 0), Vector(0, 0, 1), 40), math.radians(114.26083), math.radians(125.73917)),
    Part.LineSegment(Vector(-23.36385, 32.467376, 0), Vector(-39.658887, 60.691208, 0)),
    Part.ArcOfCircle(Part.Circle(Vector(0, 0, 0), Vector(0, 0, 1), 72.5), math.radians(116.837248), math.radians(123.162752)),
], False)
sketch4.addConstraint([
    Sketcher.Constraint("Coincident", 0, 2, 1, 2),
    Sketcher.Constraint("Coincident", 1, 1, 2, 1),
    Sketcher.Constraint("Coincident", 2, 2, 3, 1),
    Sketcher.Constraint("Coincident", 3, 2, 0, 1),
    Sketcher.Constraint("Coincident", 4, 2, 5, 1),
    Sketcher.Constraint("Coincident", 5, 2, 6, 1),
    Sketcher.Constraint("Coincident", 6, 2, 7, 2),
    Sketcher.Constraint("Coincident", 7, 1, 4, 1),
    Sketcher.Constraint("Coincident", 8, 2, 9, 1),
    Sketcher.Constraint("Coincident", 9, 2, 10, 1),
    Sketcher.Constraint("Coincident", 10, 2, 11, 2),
    Sketcher.Constraint("Coincident", 11, 1, 8, 1),
    Sketcher.Constraint("Coincident", 12, 2, 13, 1),
    Sketcher.Constraint("Coincident", 13, 2, 14, 1),
    Sketcher.Constraint("Coincident", 14, 2, 15, 2),
    Sketcher.Constraint("Coincident", 15, 1, 12, 1),
    Sketcher.Constraint("Coincident", 16, 2, 17, 1),
    Sketcher.Constraint("Coincident", 17, 2, 18, 1),
    Sketcher.Constraint("Coincident", 18, 2, 19, 2),
    Sketcher.Constraint("Coincident", 19, 1, 16, 1),
    Sketcher.Constraint("Coincident", 20, 2, 21, 1),
    Sketcher.Constraint("Coincident", 21, 2, 22, 1),
    Sketcher.Constraint("Coincident", 22, 2, 23, 2),
    Sketcher.Constraint("Coincident", 23, 1, 20, 1),
    Sketcher.Constraint("Horizontal", 0),
    Sketcher.Constraint("Horizontal", 2),
    Sketcher.Constraint("Horizontal", 12),
    Sketcher.Constraint("Horizontal", 14),
    Sketcher.Constraint("Coincident", 1, 3, -1, 1),
    Sketcher.Constraint("Coincident", 3, 3, -1, 1),
    Sketcher.Constraint("Coincident", 5, 3, -1, 1),
    Sketcher.Constraint("Coincident", 7, 3, -1, 1),
    Sketcher.Constraint("Coincident", 9, 3, -1, 1),
    Sketcher.Constraint("Coincident", 11, 3, -1, 1),
    Sketcher.Constraint("Coincident", 13, 3, -1, 1),
    Sketcher.Constraint("Coincident", 15, 3, -1, 1),
    Sketcher.Constraint("Coincident", 17, 3, -1, 1),
    Sketcher.Constraint("Coincident", 19, 3, -1, 1),
    Sketcher.Constraint("Coincident", 21, 3, -1, 1),
    Sketcher.Constraint("Coincident", 23, 3, -1, 1),
    Sketcher.Constraint("Equal", 3, 5),
    Sketcher.Constraint("Equal", 1, 7),
    Sketcher.Constraint("Equal", 5, 9),
    Sketcher.Constraint("Equal", 7, 11),
    Sketcher.Constraint("Equal", 9, 13),
    Sketcher.Constraint("Equal", 11, 15),
    Sketcher.Constraint("Equal", 13, 17),
    Sketcher.Constraint("Equal", 15, 19),
    Sketcher.Constraint("Equal", 17, 21),
    Sketcher.Constraint("Equal", 19, 23),
    Sketcher.Constraint("Parallel", 4, 6),
    Sketcher.Constraint("Parallel", 8, 10),
    Sketcher.Constraint("Parallel", 6, 16),
    Sketcher.Constraint("Parallel", 16, 18),
    Sketcher.Constraint("Parallel", 10, 20),
    Sketcher.Constraint("Parallel", 20, 22),
    Sketcher.Constraint("Horizontal", 5, 2, 8, 2),
    Sketcher.Constraint("Horizontal", 4, 2, 9, 2),
    Sketcher.Constraint("Horizontal", 7, 1, 10, 2),
    Sketcher.Constraint("Horizontal", 3, 2, 12, 2),
    Sketcher.Constraint("Horizontal", 2, 2, 13, 2),
    Sketcher.Constraint("Horizontal", 17, 2, 20, 2),
    Sketcher.Constraint("Horizontal", 16, 2, 21, 2),
    Sketcher.Constraint("Vertical", 0, 2, 1, 1),
    Sketcher.Constraint("Vertical", 9, 2, 16, 2),
    Sketcher.Constraint("Vertical", 8, 2, 17, 2),
    Sketcher.Constraint("Equal", 4, 6),
    Sketcher.Constraint("Radius", 3, 40.0),
    Sketcher.Constraint("Radius", 1, 72.5),
    Sketcher.Constraint("Angle", 4, Q("60 deg")),
    Sketcher.Constraint("DistanceY", 0, 2, -1, 1, 4.0),
    Sketcher.Constraint("DistanceY", 5, 2, 4, 2, 4.0),
])
pocket3 = doc.addObject("PartDesign::Pocket", "Pocket002")
body.addObject(pocket3)
pocket3.Profile = sketch4
pocket3.Type = "ThroughAll"
pocket3.Reversed = True
doc.recompute()

fillet = doc.addObject("PartDesign::Fillet", "Fillet")
body.addObject(fillet)
fillet.Base = (pocket3, edges_at(pocket3, [
    (100, 1.5, 90),
    (-100, 1.5, 90),
    (-100, 1.5, -90),
    (100, 1.5, -90),
]))
fillet.Radius = 20
doc.recompute()

fillet2 = doc.addObject("PartDesign::Fillet", "Fillet001")
body.addObject(fillet2)
fillet2.Base = (fillet, edges_at(fillet, [
    (-62.787, 1.5, -36.25),
    (-29.57, 1.5, -26.937),
    (-38.113, 1.5, -12.14),
    (-66.126, 1.5, -29.726),
    (-39.799, 1.5, -4),
    (7.32, 1.5, -72.13),
    (16.436, 1.5, -36.467),
    (-7.32, 1.5, -72.13),
    (-16.436, 1.5, -36.467),
    (58.806, 1.5, -42.404),
    (23.364, 1.5, -32.467),
    (29.57, 1.5, -26.937),
    (62.787, 1.5, -36.25),
    (38.113, 1.5, -12.14),
    (66.126, 1.5, -29.726),
    (39.799, 1.5, -4),
    (-8.544, 1.5, -39.077),
    (0, 1.5, -72.5),
    (8.544, 1.5, -39.077),
    (-85, 1.5, 75),
    (-85, 1.5, 21),
    (-64.896, 1.5, 54.896),
    (85, 1.5, -75),
    (85, 1.5, -21),
    (64.896, 1.5, -54.896),
    (85, 1.5, 21),
    (85, 1.5, 75),
    (64.896, 1.5, 54.896),
    (-64.896, 1.5, -54.896),
    (-85, 1.5, -21),
    (-85, 1.5, -75),
    (-58.806, 1.5, -42.404),
    (-23.364, 1.5, -32.467),
    (75.101, 1.5, -75),
    (60.154, 1.5, -60.054),
    (35.101, 1.5, -75),
    (75.101, 1.5, 75),
    (35.101, 1.5, 75),
    (60.154, 1.5, 60.054),
    (-75.101, 1.5, 75),
    (-60.154, 1.5, 60.054),
    (-35.101, 1.5, 75),
    (-29.57, 1.5, 26.937),
    (-62.787, 1.5, 36.25),
    (-38.113, 1.5, 12.14),
    (-7.32, 1.5, 72.13),
    (-16.436, 1.5, 36.467),
    (38.113, 1.5, 12.14),
    (62.787, 1.5, 36.25),
    (29.57, 1.5, 26.937),
    (66.126, 1.5, 29.726),
    (39.799, 1.5, 4),
    (58.806, 1.5, 42.404),
    (23.364, 1.5, 32.467),
    (8.544, 1.5, 39.077),
    (0, 1.5, 72.5),
    (-8.544, 1.5, 39.077),
    (7.32, 1.5, 72.13),
    (16.436, 1.5, 36.467),
    (-66.126, 1.5, 29.726),
    (-39.799, 1.5, 4),
    (-58.806, 1.5, 42.404),
    (-23.364, 1.5, 32.467),
    (-75.101, 1.5, -75),
    (-35.101, 1.5, -75),
    (-60.154, 1.5, -60.054),
]))
fillet2.Radius = 2

sketch5 = doc.addObject("Sketcher::SketchObject", "Sketch004")
body.addObject(sketch5)
sketch5.AttachmentSupport = (doc.XZ_Plane, [""])
sketch5.MapMode = "FlatFace"
sketch5.AttachmentOffset = App.Placement(Vector(0, 0, -3), App.Rotation())
sketch5.addGeometry([
    Part.Circle(Vector(-92.5, 61, 0), Vector(0, 0, 1), 1.45),
    Part.Circle(Vector(-92.5, 51, 0), Vector(0, 0, 1), 1.45),
    Part.Circle(Vector(-76, 82.5, 0), Vector(0, 0, 1), 1.45),
    Part.Circle(Vector(-66, 82.5, 0), Vector(0, 0, 1), 1.45),
    Part.Circle(Vector(61, 82.5, 0), Vector(0, 0, 1), 1.45),
    Part.Circle(Vector(71, 82.5, 0), Vector(0, 0, 1), 1.45),
    Part.Circle(Vector(92.5, 66, 0), Vector(0, 0, 1), 1.45),
    Part.Circle(Vector(92.5, 56, 0), Vector(0, 0, 1), 1.45),
    Part.Circle(Vector(-92.5, -55, 0), Vector(0, 0, 1), 1.45),
    Part.Circle(Vector(-92.5, -65, 0), Vector(0, 0, 1), 1.45),
    Part.Circle(Vector(92.5, -65, 0), Vector(0, 0, 1), 1.45),
    Part.Circle(Vector(92.5, -55, 0), Vector(0, 0, 1), 1.45),
], False)
sketch5.addConstraint([
    Sketcher.Constraint("Equal", 0, 1),
    Sketcher.Constraint("Equal", 1, 2),
    Sketcher.Constraint("Equal", 2, 3),
    Sketcher.Constraint("Equal", 3, 4),
    Sketcher.Constraint("Equal", 4, 5),
    Sketcher.Constraint("Equal", 5, 6),
    Sketcher.Constraint("Equal", 6, 7),
    Sketcher.Constraint("Equal", 7, 8),
    Sketcher.Constraint("Equal", 8, 9),
    Sketcher.Constraint("Equal", 9, 10),
    Sketcher.Constraint("Equal", 10, 11),
    Sketcher.Constraint("Symmetric", 9, 3, 10, 3, -2),
    Sketcher.Constraint("Symmetric", 8, 3, 11, 3, -2),
    Sketcher.Constraint("Horizontal", 2, 3, 3, 3),
    Sketcher.Constraint("Horizontal", 3, 3, 4, 3),
    Sketcher.Constraint("Horizontal", 4, 3, 5, 3),
    Sketcher.Constraint("Vertical", 0, 3, 1, 3),
    Sketcher.Constraint("Vertical", 6, 3, 7, 3),
    Sketcher.Constraint("Vertical", 1, 3, 8, 3),
    Sketcher.Constraint("Vertical", 8, 3, 9, 3),
    Sketcher.Constraint("Vertical", 7, 3, 10, 3),
    Sketcher.Constraint("Diameter", 0, 2.9),
    Sketcher.Constraint("DistanceY", -1, 1, 0, 3, 61.0),
    Sketcher.Constraint("DistanceY", -1, 1, 1, 3, 51.0),
    Sketcher.Constraint("DistanceX", 2, 3, -1, 1, 76.0),
    Sketcher.Constraint("DistanceX", 3, 3, -1, 1, 66.0),
    Sketcher.Constraint("DistanceX", -1, 1, 4, 3, 61.0),
    Sketcher.Constraint("DistanceX", -1, 1, 5, 3, 71.0),
    Sketcher.Constraint("DistanceY", -1, 1, 6, 3, 66.0),
    Sketcher.Constraint("DistanceY", -1, 1, 7, 3, 56.0),
    Sketcher.Constraint("DistanceY", 8, 3, -1, 1, 55.0),
    Sketcher.Constraint("DistanceY", 9, 3, -1, 1, 65.0),
    Sketcher.Constraint("DistanceX", 0, 3, 6, 3, 185.0),
    Sketcher.Constraint("DistanceY", -1, 1, 2, 3, 82.5),
])
pocket4 = doc.addObject("PartDesign::Pocket", "Pocket003")
body.addObject(pocket4)
pocket4.Profile = sketch5
pocket4.Type = "ThroughAll"
pocket4.Reversed = True

doc.recompute()
